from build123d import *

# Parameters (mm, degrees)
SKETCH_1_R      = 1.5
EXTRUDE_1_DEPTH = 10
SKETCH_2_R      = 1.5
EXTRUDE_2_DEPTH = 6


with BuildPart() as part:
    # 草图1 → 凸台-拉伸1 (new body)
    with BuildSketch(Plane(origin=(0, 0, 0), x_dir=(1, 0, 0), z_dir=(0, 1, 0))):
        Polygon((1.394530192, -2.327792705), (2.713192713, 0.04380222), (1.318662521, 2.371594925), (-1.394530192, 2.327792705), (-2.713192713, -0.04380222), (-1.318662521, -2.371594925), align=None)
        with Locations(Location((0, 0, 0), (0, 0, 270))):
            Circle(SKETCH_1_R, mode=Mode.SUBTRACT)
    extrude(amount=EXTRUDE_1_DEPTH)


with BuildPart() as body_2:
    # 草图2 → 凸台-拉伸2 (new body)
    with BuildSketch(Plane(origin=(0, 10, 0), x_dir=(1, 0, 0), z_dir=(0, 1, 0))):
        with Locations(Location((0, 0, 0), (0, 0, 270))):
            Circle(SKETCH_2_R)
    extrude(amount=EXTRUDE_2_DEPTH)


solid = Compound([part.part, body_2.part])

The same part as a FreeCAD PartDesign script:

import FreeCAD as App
import Part
import Sketcher
from FreeCAD import Vector
Q = App.Units.Quantity

doc = App.newDocument("Part")
body = doc.addObject("PartDesign::Body", "Body")

# Sketch on XZ plane
sketch1 = body.newObject("Sketcher::SketchObject", "Sketch")
sketch1.AttachmentSupport = (doc.getObject("XZ_Plane"), [""])
sketch1.MapMode = "FlatFace"
sketch1.addGeometry(Part.LineSegment(Vector(1.39453, 2.327793, 0), Vector(2.713193, -0.043802, 0)), False)
sketch1.addGeometry(Part.LineSegment(Vector(2.713193, -0.043802, 0), Vector(1.318663, -2.371595, 0)), False)
sketch1.addGeometry(Part.LineSegment(Vector(1.318663, -2.371595, 0), Vector(-1.39453, -2.327793, 0)), False)
sketch1.addGeometry(Part.LineSegment(Vector(-1.39453, -2.327793, 0), Vector(-2.713193, 0.043802, 0)), False)
sketch1.addGeometry(Part.LineSegment(Vector(-2.713193, 0.043802, 0), Vector(-1.318663, 2.371595, 0)), False)
sketch1.addGeometry(Part.LineSegment(Vector(-1.318663, 2.371595, 0), Vector(1.39453, 2.327793, 0)), False)
sketch1.addGeometry(Part.Circle(Vector(0, 0, 0), Vector(0, 0, 1), 1.5), False)
sketch1.addConstraint(Sketcher.Constraint("Coincident", 0, 2, 1, 1))
sketch1.addConstraint(Sketcher.Constraint("Coincident", 1, 2, 2, 1))
sketch1.addConstraint(Sketcher.Constraint("Coincident", 2, 2, 3, 1))
sketch1.addConstraint(Sketcher.Constraint("Coincident", 3, 2, 4, 1))
sketch1.addConstraint(Sketcher.Constraint("Coincident", 4, 2, 5, 1))
sketch1.addConstraint(Sketcher.Constraint("Coincident", 5, 2, 0, 1))
sketch1.addConstraint(Sketcher.Constraint("Coincident", 6, 3, -1, 1))
sketch1.addConstraint(Sketcher.Constraint("Symmetric", 0, 2, 3, 2, -1, 1))
sketch1.addConstraint(Sketcher.Constraint("Symmetric", 1, 2, 4, 2, -1, 1))
sketch1.addConstraint(Sketcher.Constraint("Symmetric", 2, 2, 5, 2, -1, 1))
sketch1.addConstraint(Sketcher.Constraint("Equal", 0, 1))
sketch1.addConstraint(Sketcher.Constraint("Equal", 1, 2))
sketch1.addConstraint(Sketcher.Constraint("Diameter", 6, Q("3 mm")))
sketch1.addConstraint(Sketcher.Constraint("DistanceX", 2, 2, -1, 1, Q("1.39453 mm")))
sketch1.addConstraint(Sketcher.Constraint("DistanceX", 1, 2, 0, 2, Q("1.39453 mm")))
sketch1.addConstraint(Sketcher.Constraint("DistanceY", 2, 2, 0, 2, Q("2.28399 mm")))
sketch1.addConstraint(Sketcher.Constraint("DistanceY", 1, 2, 4, 2, Q("4.74319 mm")))
pad1 = body.newObject("PartDesign::Pad", "Pad")
pad1.Profile = sketch1
pad1.Length = 10
pad1.Reversed = True
body2 = doc.addObject("PartDesign::Body", "Body001")

# Sketch on XZ plane
sketch2 = body2.newObject("Sketcher::SketchObject", "Sketch001")
sketch2.AttachmentSupport = (doc.getObject("XZ_Plane001"), [""])
sketch2.MapMode = "FlatFace"
sketch2.AttachmentOffset = App.Placement(Vector(0, 0, -10), App.Rotation())
sketch2.addGeometry(Part.Circle(Vector(0, 0, 0), Vector(0, 0, 1), 1.5), False)
sketch2.addConstraint(Sketcher.Constraint("Coincident", 0, 3, -1, 1))
sketch2.addConstraint(Sketcher.Constraint("Diameter", 0, Q("3 mm")))
pad2 = body2.newObject("PartDesign::Pad", "Pad001")
pad2.Profile = sketch2
pad2.Length = 6
pad2.Reversed = True

doc.recompute()
